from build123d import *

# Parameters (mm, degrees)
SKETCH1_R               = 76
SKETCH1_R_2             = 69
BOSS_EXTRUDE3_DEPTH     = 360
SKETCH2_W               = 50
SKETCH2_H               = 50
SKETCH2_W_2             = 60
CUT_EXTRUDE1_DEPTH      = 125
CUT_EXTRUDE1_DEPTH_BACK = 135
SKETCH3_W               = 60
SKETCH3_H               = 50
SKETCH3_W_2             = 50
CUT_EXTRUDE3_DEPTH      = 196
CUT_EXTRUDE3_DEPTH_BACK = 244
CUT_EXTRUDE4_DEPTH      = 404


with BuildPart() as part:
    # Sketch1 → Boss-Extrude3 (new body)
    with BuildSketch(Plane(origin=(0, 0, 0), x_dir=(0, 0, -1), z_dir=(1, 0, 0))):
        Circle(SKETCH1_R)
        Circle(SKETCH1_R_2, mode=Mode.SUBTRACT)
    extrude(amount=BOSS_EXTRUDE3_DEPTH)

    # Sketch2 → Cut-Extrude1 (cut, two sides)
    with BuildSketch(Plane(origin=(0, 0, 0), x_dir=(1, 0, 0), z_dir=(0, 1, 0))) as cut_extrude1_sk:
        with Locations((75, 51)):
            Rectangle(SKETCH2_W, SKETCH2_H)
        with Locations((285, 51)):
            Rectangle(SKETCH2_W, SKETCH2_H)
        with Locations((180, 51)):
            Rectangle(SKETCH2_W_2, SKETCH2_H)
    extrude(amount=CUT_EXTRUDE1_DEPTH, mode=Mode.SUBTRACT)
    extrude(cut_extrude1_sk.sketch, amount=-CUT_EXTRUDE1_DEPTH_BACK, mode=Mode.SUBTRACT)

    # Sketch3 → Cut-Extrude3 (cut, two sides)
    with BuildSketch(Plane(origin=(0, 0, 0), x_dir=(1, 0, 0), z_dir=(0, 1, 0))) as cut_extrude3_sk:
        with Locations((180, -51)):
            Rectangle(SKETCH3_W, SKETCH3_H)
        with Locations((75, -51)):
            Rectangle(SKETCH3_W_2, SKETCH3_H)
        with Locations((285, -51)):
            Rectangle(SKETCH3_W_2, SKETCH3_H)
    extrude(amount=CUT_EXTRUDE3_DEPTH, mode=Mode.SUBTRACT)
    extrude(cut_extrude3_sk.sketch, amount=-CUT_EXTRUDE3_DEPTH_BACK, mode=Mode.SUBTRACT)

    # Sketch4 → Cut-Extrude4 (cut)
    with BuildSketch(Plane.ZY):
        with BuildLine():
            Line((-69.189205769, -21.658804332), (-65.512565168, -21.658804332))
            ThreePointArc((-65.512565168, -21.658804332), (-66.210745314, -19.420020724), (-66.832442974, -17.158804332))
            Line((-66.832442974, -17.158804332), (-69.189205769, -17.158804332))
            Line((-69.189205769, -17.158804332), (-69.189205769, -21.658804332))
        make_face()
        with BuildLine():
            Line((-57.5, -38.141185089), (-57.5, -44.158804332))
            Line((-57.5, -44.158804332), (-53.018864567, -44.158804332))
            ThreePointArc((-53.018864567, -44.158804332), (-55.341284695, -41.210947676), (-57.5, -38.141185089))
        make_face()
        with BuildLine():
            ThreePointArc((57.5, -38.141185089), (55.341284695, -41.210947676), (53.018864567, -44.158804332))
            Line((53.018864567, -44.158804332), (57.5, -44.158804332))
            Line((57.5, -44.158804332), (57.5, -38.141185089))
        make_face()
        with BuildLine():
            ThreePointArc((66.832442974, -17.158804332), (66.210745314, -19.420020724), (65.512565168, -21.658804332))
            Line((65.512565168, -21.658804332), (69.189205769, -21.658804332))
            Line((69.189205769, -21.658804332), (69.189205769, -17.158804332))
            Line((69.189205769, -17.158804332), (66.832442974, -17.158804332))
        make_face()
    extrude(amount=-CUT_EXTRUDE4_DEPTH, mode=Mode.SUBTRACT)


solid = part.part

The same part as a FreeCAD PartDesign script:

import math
import FreeCAD as App
import Part
import Sketcher
from FreeCAD import Vector
Q = App.Units.Quantity

doc = App.newDocument("Part")
body = doc.addObject("PartDesign::Body", "Body")

# Sketch on YZ plane
sketch1 = body.newObject("Sketcher::SketchObject", "Sketch")
sketch1.AttachmentSupport = (doc.getObject("YZ_Plane"), [""])
sketch1.MapMode = "FlatFace"
sketch1.addGeometry([
    Part.Circle(Vector(0, 0, 0), Vector(0, 0, 1), 76),
    Part.Circle(Vector(0, 0, 0), Vector(0, 0, 1), 69),
], False)
sketch1.addConstraint([
    Sketcher.Constraint("Coincident", 0, 3, -1, 1),
    Sketcher.Constraint("Coincident", 1, 3, -1, 1),
    Sketcher.Constraint("Diameter", 0, Q("152 mm")),
    Sketcher.Constraint("Diameter", 1, Q("138 mm")),
])
pad1 = body.newObject("PartDesign::Pad", "Pad")
pad1.Profile = sketch1
pad1.Length = 360

# Sketch on XZ plane
sketch2 = body.newObject("Sketcher::SketchObject", "Sketch001")
sketch2.AttachmentSupport = (doc.getObject("XZ_Plane"), [""])
sketch2.MapMode = "FlatFace"
sketch2.addGeometry([
    Part.LineSegment(Vector(50, -76, 0), Vector(50, -26, 0)),  # 0
    Part.LineSegment(Vector(50, -26, 0), Vector(100, -26, 0)),  # 1
    Part.LineSegment(Vector(100, -26, 0), Vector(100, -76, 0)),  # 2
    Part.LineSegment(Vector(100, -76, 0), Vector(50, -76, 0)),  # 3
    Part.LineSegment(Vector(260, -76, 0), Vector(260, -26, 0)),  # 4
    Part.LineSegment(Vector(260, -26, 0), Vector(310, -26, 0)),  # 5
    Part.LineSegment(Vector(310, -26, 0), Vector(310, -76, 0)),  # 6
    Part.LineSegment(Vector(310, -76, 0), Vector(260, -76, 0)),  # 7
    Part.LineSegment(Vector(150, -76, 0), Vector(150, -26, 0)),  # 8
    Part.LineSegment(Vector(150, -26, 0), Vector(210, -26, 0)),  # 9
    Part.LineSegment(Vector(210, -26, 0), Vector(210, -76, 0)),  # 10
    Part.LineSegment(Vector(210, -76, 0), Vector(150, -76, 0)),  # 11
], False)
sketch2.addConstraint([
    Sketcher.Constraint("Coincident", 0, 2, 1, 1),
    Sketcher.Constraint("Coincident", 1, 2, 2, 1),
    Sketcher.Constraint("Coincident", 2, 2, 3, 1),
    Sketcher.Constraint("Coincident", 3, 2, 0, 1),
    Sketcher.Constraint("Coincident", 4, 2, 5, 1),
    Sketcher.Constraint("Coincident", 5, 2, 6, 1),
    Sketcher.Constraint("Coincident", 6, 2, 7, 1),
    Sketcher.Constraint("Coincident", 7, 2, 4, 1),
    Sketcher.Constraint("Coincident", 8, 2, 9, 1),
    Sketcher.Constraint("Coincident", 9, 2, 10, 1),
    Sketcher.Constraint("Coincident", 10, 2, 11, 1),
    Sketcher.Constraint("Coincident", 11, 2, 8, 1),
    Sketcher.Constraint("Vertical", 0),
    Sketcher.Constraint("Horizontal", 1),
    Sketcher.Constraint("Vertical", 2),
    Sketcher.Constraint("Horizontal", 3),
    Sketcher.Constraint("Vertical", 4),
    Sketcher.Constraint("Horizontal", 5),
    Sketcher.Constraint("Vertical", 6),
    Sketcher.Constraint("Horizontal", 7),
    Sketcher.Constraint("Vertical", 8),
    Sketcher.Constraint("Horizontal", 9),
    Sketcher.Constraint("Vertical", 10),
    Sketcher.Constraint("Horizontal", 11),
    Sketcher.Constraint("Horizontal", 1, 2, 4, 2),
    Sketcher.Constraint("Horizontal", 3, 2, 6, 2),
    Sketcher.Constraint("Horizontal", 5, 2, 8, 2),
    Sketcher.Constraint("Horizontal", 7, 2, 10, 2),
    Sketcher.Constraint("Equal", 3, 5),
    Sketcher.Constraint("Equal", 7, 0),
    Sketcher.Constraint("DistanceX", 1, 1, 1, 2, Q("50 mm")),
    Sketcher.Constraint("DistanceX", 9, 1, 9, 2, Q("60 mm")),
    Sketcher.Constraint("DistanceX", -1, 1, 0, 2, Q("50 mm")),
    Sketcher.Constraint("DistanceY", 0, 2, -1, 1, Q("26 mm")),
    Sketcher.Constraint("DistanceX", -1, 1, 4, 2, Q("260 mm")),
    Sketcher.Constraint("DistanceX", -1, 1, 8, 2, Q("150 mm")),
])
pocket1 = body.newObject("PartDesign::Pocket", "Pocket")
pocket1.Profile = sketch2
pocket1.Type = "ThroughAll"
pocket1.Midplane = True

# Sketch on XZ plane
sketch3 = body.newObject("Sketcher::SketchObject", "Sketch002")
sketch3.AttachmentSupport = (doc.getObject("XZ_Plane"), [""])
sketch3.MapMode = "FlatFace"
sketch3.addGeometry([
    Part.LineSegment(Vector(150, 26, 0), Vector(150, 76, 0)),  # 0
    Part.LineSegment(Vector(150, 76, 0), Vector(210, 76, 0)),  # 1
    Part.LineSegment(Vector(210, 76, 0), Vector(210, 26, 0)),  # 2
    Part.LineSegment(Vector(210, 26, 0), Vector(150, 26, 0)),  # 3
    Part.LineSegment(Vector(50, 26, 0), Vector(50, 76, 0)),  # 4
    Part.LineSegment(Vector(50, 76, 0), Vector(100, 76, 0)),  # 5
    Part.LineSegment(Vector(100, 76, 0), Vector(100, 26, 0)),  # 6
    Part.LineSegment(Vector(100, 26, 0), Vector(50, 26, 0)),  # 7
    Part.LineSegment(Vector(260, 26, 0), Vector(260, 76, 0)),  # 8
    Part.LineSegment(Vector(260, 76, 0), Vector(310, 76, 0)),  # 9
    Part.LineSegment(Vector(310, 76, 0), Vector(310, 26, 0)),  # 10
    Part.LineSegment(Vector(310, 26, 0), Vector(260, 26, 0)),  # 11
], False)
sketch3.addConstraint([
    Sketcher.Constraint("Coincident", 0, 2, 1, 1),
    Sketcher.Constraint("Coincident", 1, 2, 2, 1),
    Sketcher.Constraint("Coincident", 2, 2, 3, 1),
    Sketcher.Constraint("Coincident", 3, 2, 0, 1),
    Sketcher.Constraint("Coincident", 4, 2, 5, 1),
    Sketcher.Constraint("Coincident", 5, 2, 6, 1),
    Sketcher.Constraint("Coincident", 6, 2, 7, 1),
    Sketcher.Constraint("Coincident", 7, 2, 4, 1),
    Sketcher.Constraint("Coincident", 8, 2, 9, 1),
    Sketcher.Constraint("Coincident", 9, 2, 10, 1),
    Sketcher.Constraint("Coincident", 10, 2, 11, 1),
    Sketcher.Constraint("Coincident", 11, 2, 8, 1),
    Sketcher.Constraint("Vertical", 0),
    Sketcher.Constraint("Horizontal", 1),
    Sketcher.Constraint("Vertical", 2),
    Sketcher.Constraint("Horizontal", 3),
    Sketcher.Constraint("Vertical", 4),
    Sketcher.Constraint("Horizontal", 5),
    Sketcher.Constraint("Vertical", 6),
    Sketcher.Constraint("Horizontal", 7),
    Sketcher.Constraint("Vertical", 8),
    Sketcher.Constraint("Horizontal", 9),
    Sketcher.Constraint("Vertical", 10),
    Sketcher.Constraint("Horizontal", 11),
    Sketcher.Constraint("Horizontal", 1, 2, 4, 2),
    Sketcher.Constraint("Horizontal", 3, 2, 6, 2),
    Sketcher.Constraint("Horizontal", 5, 2, 8, 2),
    Sketcher.Constraint("Horizontal", 7, 2, 10, 2),
    Sketcher.Constraint("Equal", 7, 9),
    Sketcher.Constraint("Equal", 11, 0),
    Sketcher.Constraint("DistanceX", 1, 1, 1, 2, Q("60 mm")),
    Sketcher.Constraint("DistanceX", 5, 1, 5, 2, Q("50 mm")),
    Sketcher.Constraint("DistanceX", -1, 1, 0, 2, Q("150 mm")),
    Sketcher.Constraint("DistanceY", -1, 1, 0, 2, Q("76 mm")),
    Sketcher.Constraint("DistanceX", -1, 1, 4, 2, Q("50 mm")),
    Sketcher.Constraint("DistanceX", -1, 1, 8, 2, Q("260 mm")),
])
pocket2 = body.newObject("PartDesign::Pocket", "Pocket001")
pocket2.Profile = sketch3
pocket2.Type = "ThroughAll"
pocket2.Midplane = True

# Sketch on YZ plane
sketch4 = body.newObject("Sketcher::SketchObject", "Sketch003")
sketch4.AttachmentSupport = (doc.getObject("YZ_Plane"), [""])
sketch4.MapMode = "FlatFace"
sketch4.addGeometry([
    Part.LineSegment(Vector(-21.7, -69.2, 0), Vector(-21.7, -65.5, 0)),  # 0
    Part.ArcOfCircle(Part.Circle(Vector(0, 0, 0), Vector(0, 0, 1), 69), math.radians(-108.29), math.radians(-104.4)),  # 1
    Part.LineSegment(Vector(-17.2, -66.8, 0), Vector(-17.2, -69.2, 0)),  # 2
    Part.LineSegment(Vector(-17.2, -69.2, 0), Vector(-21.7, -69.2, 0)),  # 3
    Part.LineSegment(Vector(-38.1, -57.5, 0), Vector(-44.2, -57.5, 0)),  # 4
    Part.LineSegment(Vector(-44.2, -57.5, 0), Vector(-44.2, -53, 0)),  # 5
    Part.ArcOfCircle(Part.Circle(Vector(0, 0, 0), Vector(0, 0, 1), 69), math.radians(-129.79), math.radians(-123.56)),  # 6
    Part.ArcOfCircle(Part.Circle(Vector(0, 0, 0), Vector(0, 0, 1), 69), math.radians(123.56), math.radians(129.79)),  # 7
    Part.LineSegment(Vector(-44.2, 53, 0), Vector(-44.2, 57.5, 0)),  # 8
    Part.LineSegment(Vector(-44.2, 57.5, 0), Vector(-38.1, 57.5, 0)),  # 9
    Part.ArcOfCircle(Part.Circle(Vector(0, 0, 0), Vector(0, 0, 1), 69), math.radians(104.4), math.radians(108.29)),  # 10
    Part.LineSegment(Vector(-21.7, 65.5, 0), Vector(-21.7, 69.2, 0)),  # 11
    Part.LineSegment(Vector(-21.7, 69.2, 0), Vector(-17.2, 69.2, 0)),  # 12
    Part.LineSegment(Vector(-17.2, 69.2, 0), Vector(-17.2, 66.8, 0)),  # 13
], False)
sketch4.addConstraint([
    Sketcher.Constraint("Coincident", 0, 2, 1, 1),
    Sketcher.Constraint("Coincident", 1, 2, 2, 1),
    Sketcher.Constraint("Coincident", 2, 2, 3, 1),
    Sketcher.Constraint("Coincident", 3, 2, 0, 1),
    Sketcher.Constraint("Coincident", 4, 2, 5, 1),
    Sketcher.Constraint("Coincident", 5, 2, 6, 1),
    Sketcher.Constraint("Coincident", 6, 2, 4, 1),
    Sketcher.Constraint("Coincident", 7, 2, 8, 1),
    Sketcher.Constraint("Coincident", 8, 2, 9, 1),
    Sketcher.Constraint("Coincident", 9, 2, 7, 1),
    Sketcher.Constraint("Coincident", 10, 2, 11, 1),
    Sketcher.Constraint("Coincident", 11, 2, 12, 1),
    Sketcher.Constraint("Coincident", 12, 2, 13, 1),
    Sketcher.Constraint("Coincident", 13, 2, 10, 1),
    Sketcher.Constraint("Vertical", 0),
    Sketcher.Constraint("Vertical", 2),
    Sketcher.Constraint("Horizontal", 3),
    Sketcher.Constraint("Horizontal", 4),
    Sketcher.Constraint("Vertical", 5),
    Sketcher.Constraint("Vertical", 8),
    Sketcher.Constraint("Horizontal", 9),
    Sketcher.Constraint("Vertical", 11),
    Sketcher.Constraint("Horizontal", 12),
    Sketcher.Constraint("Vertical", 13),
    Sketcher.Constraint("Coincident", 1, 3, -1, 1),
    Sketcher.Constraint("Coincident", 6, 3, -1, 1),
    Sketcher.Constraint("Coincident", 7, 3, -1, 1),
    Sketcher.Constraint("Coincident", 10, 3, -1, 1),
    Sketcher.Constraint("Equal", 1, 6),
    Sketcher.Constraint("Equal", 6, 7),
    Sketcher.Constraint("Equal", 7, 10),
    Sketcher.Constraint("Symmetric", 4, 2, 8, 2, -1),
    Sketcher.Constraint("Symmetric", 3, 2, 11, 2, -1),
    Sketcher.Constraint("Vertical", 2, 2, 12, 2),
    Sketcher.Constraint("Radius", 1, Q("69 mm")),
    Sketcher.Constraint("DistanceX", 3, 2, 3, 1, Q("4.5 mm")),
    Sketcher.Constraint("DistanceX", 4, 2, 1, 2, Q("27 mm")),
    Sketcher.Constraint("DistanceY", 4, 2, -1, 1, Q("57.5 mm")),
    Sketcher.Constraint("DistanceX", 4, 2, 4, 1, Q("6.017619 mm")),
    Sketcher.Constraint("DistanceY", 0, 1, 0, 2, Q("3.676641 mm")),
])
pocket3 = body.newObject("PartDesign::Pocket", "Pocket002")
pocket3.Profile = sketch4
pocket3.Length = 404
pocket3.Reversed = True

doc.recompute()
